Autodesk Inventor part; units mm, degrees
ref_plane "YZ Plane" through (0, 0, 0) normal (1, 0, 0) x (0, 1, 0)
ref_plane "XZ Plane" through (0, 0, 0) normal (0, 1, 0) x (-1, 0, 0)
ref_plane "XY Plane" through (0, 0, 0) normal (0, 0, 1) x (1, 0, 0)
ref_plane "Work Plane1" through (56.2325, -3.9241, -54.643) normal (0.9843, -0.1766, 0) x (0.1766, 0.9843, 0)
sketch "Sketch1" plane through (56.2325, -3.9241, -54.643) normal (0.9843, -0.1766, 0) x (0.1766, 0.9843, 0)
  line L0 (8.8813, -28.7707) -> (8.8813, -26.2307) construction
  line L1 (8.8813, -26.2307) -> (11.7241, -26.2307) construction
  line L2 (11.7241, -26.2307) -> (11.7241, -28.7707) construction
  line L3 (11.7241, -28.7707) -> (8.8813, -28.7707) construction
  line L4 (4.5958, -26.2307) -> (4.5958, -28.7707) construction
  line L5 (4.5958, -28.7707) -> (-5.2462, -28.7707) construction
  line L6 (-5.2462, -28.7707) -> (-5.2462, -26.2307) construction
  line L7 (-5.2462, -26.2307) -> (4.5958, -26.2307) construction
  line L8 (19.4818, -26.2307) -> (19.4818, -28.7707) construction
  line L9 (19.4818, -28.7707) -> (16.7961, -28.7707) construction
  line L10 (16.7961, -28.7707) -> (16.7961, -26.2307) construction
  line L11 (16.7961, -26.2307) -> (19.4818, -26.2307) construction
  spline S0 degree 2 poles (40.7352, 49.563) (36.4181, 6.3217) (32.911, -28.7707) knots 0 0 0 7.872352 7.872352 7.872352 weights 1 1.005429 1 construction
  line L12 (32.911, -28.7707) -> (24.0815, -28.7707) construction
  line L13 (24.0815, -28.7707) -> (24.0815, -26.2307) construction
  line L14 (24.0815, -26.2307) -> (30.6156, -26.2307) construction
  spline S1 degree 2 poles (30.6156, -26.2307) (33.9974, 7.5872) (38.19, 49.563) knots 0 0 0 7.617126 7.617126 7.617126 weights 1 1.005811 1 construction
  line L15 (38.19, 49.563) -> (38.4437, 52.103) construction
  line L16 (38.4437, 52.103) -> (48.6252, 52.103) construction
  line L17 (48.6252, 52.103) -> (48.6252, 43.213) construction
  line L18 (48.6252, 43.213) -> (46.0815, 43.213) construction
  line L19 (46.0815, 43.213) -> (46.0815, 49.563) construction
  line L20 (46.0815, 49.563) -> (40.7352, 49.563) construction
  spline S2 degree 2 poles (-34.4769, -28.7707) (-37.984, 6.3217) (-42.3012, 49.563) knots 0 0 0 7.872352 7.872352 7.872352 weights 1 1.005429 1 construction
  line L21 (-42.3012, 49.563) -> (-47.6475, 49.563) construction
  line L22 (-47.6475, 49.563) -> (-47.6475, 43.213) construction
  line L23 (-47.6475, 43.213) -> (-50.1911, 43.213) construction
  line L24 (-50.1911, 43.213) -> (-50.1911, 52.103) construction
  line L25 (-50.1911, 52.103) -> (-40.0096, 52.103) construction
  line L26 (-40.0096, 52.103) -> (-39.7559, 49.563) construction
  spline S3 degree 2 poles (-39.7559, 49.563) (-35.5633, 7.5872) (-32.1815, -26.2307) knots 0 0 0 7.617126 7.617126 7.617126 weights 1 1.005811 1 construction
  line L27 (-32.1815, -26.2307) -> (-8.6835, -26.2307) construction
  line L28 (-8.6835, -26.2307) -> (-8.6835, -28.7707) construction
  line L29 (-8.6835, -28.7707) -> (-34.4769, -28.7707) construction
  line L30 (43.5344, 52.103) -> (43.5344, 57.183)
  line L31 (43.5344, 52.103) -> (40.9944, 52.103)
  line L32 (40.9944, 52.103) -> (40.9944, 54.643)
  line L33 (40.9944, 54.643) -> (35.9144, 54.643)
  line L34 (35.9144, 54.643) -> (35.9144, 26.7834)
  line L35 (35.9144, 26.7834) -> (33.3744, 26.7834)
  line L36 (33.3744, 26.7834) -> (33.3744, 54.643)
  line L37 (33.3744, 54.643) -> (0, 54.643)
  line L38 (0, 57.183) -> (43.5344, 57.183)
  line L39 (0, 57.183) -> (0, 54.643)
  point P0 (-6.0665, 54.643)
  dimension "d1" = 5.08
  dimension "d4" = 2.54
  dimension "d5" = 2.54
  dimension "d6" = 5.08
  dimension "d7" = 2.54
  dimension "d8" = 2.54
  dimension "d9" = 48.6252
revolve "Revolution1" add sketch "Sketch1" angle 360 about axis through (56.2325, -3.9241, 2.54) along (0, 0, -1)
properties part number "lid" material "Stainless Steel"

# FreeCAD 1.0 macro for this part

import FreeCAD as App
import Part
import Sketcher
Q = App.Units.Quantity


def add_polygon(sketch, points):
    """Adds a closed chain of lines whose ends are joined by coincident constraints."""
    first, n = sketch.GeometryCount, len(points)
    for a, b in zip(points, points[1:] + points[:1]):
        sketch.addGeometry(Part.LineSegment(App.Vector(*a, 0), App.Vector(*b, 0)), False)
    for i in range(n):
        sketch.addConstraint(Sketcher.Constraint("Coincident", first + i, 2, first + (i + 1) % n, 1))

doc = App.newDocument("Part")
body = doc.addObject("PartDesign::Body", "Body")

sketch1 = body.newObject("Sketcher::SketchObject", "Sketch")
sketch1.Placement = App.Placement(App.Vector(56.2325, -3.9241, -54.643), App.Rotation(App.Vector(0.176596993, 0.984283243, 0), App.Vector(0, 0, 1), App.Vector(0.984283243, -0.176596993, 0), "ZXY"))
add_polygon(sketch1, [(41, 52.1), (43.5, 52.1), (43.5, 57.2), (0, 57.2), (0, 54.6), (33.4, 54.6), (33.4, 26.8), (35.9, 26.8), (35.9, 54.6), (41, 54.6)])
sketch1.addConstraint([
    Sketcher.Constraint("Horizontal", 0),
    Sketcher.Constraint("Vertical", 1),
    Sketcher.Constraint("Horizontal", 2),
    Sketcher.Constraint("Vertical", 3),
    Sketcher.Constraint("Horizontal", 4),
    Sketcher.Constraint("Vertical", 5),
    Sketcher.Constraint("Horizontal", 6),
    Sketcher.Constraint("Vertical", 7),
    Sketcher.Constraint("Horizontal", 8),
    Sketcher.Constraint("Vertical", 9),
    Sketcher.Constraint("PointOnObject", 2, 2, -2),
    Sketcher.Constraint("Horizontal", 4, 2, 7, 2),
    Sketcher.Constraint("Equal", 0, 6),
    Sketcher.Constraint("Equal", 8, 1),
    Sketcher.Constraint("Equal", 6, 3),
    Sketcher.Constraint("Equal", 3, 9),
    Sketcher.Constraint("DistanceX", 0, 1, 0, 2, Q("0.1 in")),
    Sketcher.Constraint("DistanceX", 2, 2, 2, 1, Q("43.5344 mm")),
    Sketcher.Constraint("DistanceY", 5, 2, 5, 1, Q("27.8596 mm")),
    Sketcher.Constraint("DistanceY", -1, 1, 0, 2, Q("2.0513 in")),
])
revolution = body.newObject("PartDesign::Revolution", "Revolution")
revolution.Profile = sketch1
revolution.ReferenceAxis = (sketch1, ["V_Axis"])
revolution.Angle = 360

doc.recompute()
